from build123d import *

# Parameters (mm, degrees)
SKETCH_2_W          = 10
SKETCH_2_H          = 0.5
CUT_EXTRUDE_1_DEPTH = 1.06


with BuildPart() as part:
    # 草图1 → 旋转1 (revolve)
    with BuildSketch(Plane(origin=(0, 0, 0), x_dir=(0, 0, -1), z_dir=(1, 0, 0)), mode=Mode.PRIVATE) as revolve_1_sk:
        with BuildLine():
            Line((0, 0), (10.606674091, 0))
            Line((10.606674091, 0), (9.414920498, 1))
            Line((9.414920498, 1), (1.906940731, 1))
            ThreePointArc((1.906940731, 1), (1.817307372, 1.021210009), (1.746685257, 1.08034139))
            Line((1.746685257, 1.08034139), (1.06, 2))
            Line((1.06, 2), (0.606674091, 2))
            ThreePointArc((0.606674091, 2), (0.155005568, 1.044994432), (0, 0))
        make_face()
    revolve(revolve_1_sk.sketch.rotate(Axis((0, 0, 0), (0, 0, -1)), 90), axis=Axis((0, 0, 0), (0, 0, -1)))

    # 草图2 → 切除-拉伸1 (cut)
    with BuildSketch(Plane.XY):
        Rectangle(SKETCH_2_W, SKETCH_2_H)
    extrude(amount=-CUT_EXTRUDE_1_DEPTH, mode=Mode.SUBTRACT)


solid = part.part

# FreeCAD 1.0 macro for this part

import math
import FreeCAD as App
import Part
import Sketcher
from FreeCAD import Vector
Q = App.Units.Quantity


def add_polygon(sketch, points):
    """Adds a closed chain of lines whose ends are joined by coincident constraints."""
    first, n = sketch.GeometryCount, len(points)
    for a, b in zip(points, points[1:] + points[:1]):
        sketch.addGeometry(Part.LineSegment(App.Vector(*a, 0), App.Vector(*b, 0)), False)
    for i in range(n):
        sketch.addConstraint(Sketcher.Constraint("Coincident", first + i, 2, first + (i + 1) % n, 1))

doc = App.newDocument("Part")
body = doc.addObject("PartDesign::Body", "Body")

# Sketch on YZ plane
sketch1 = body.newObject("Sketcher::SketchObject", "Sketch")
sketch1.AttachmentSupport = (doc.getObject("YZ_Plane"), [""])
sketch1.MapMode = "FlatFace"
sketch1.addGeometry([
    Part.LineSegment(Vector(0, 0, 0), Vector(0, -10.606674, 0)),  # 0
    Part.LineSegment(Vector(0, -10.606674, 0), Vector(1, -9.41492, 0)),  # 1
    Part.LineSegment(Vector(1, -9.41492, 0), Vector(1, -1.906941, 0)),  # 2
    Part.ArcOfCircle(Part.Circle(Vector(1.2, -1.906941, 0), Vector(0, 0, 1), 0.2), math.radians(126.747744), math.radians(180)),  # 3
    Part.LineSegment(Vector(1.080341, -1.746685, 0), Vector(2, -1.06, 0)),  # 4
    Part.LineSegment(Vector(2, -1.06, 0), Vector(2, -0.606674, 0)),  # 5
    Part.ArcOfCircle(Part.Circle(Vector(0, -3.6, 0), Vector(0, 0, 1), 3.6), math.radians(56.251011), math.radians(90)),  # 6
], False)
sketch1.addConstraint([
    Sketcher.Constraint("Coincident", 0, 2, 1, 1),
    Sketcher.Constraint("Coincident", 1, 2, 2, 1),
    Sketcher.Constraint("Tangent", 2, 2, 3, 2),
    Sketcher.Constraint("Tangent", 3, 1, 4, 1),
    Sketcher.Constraint("Coincident", 4, 2, 5, 1),
    Sketcher.Constraint("Coincident", 5, 2, 6, 1),
    Sketcher.Constraint("Coincident", 6, 2, 0, 1),
    Sketcher.Constraint("Vertical", 0),
    Sketcher.Constraint("Vertical", 2),
    Sketcher.Constraint("Vertical", 5),
    Sketcher.Constraint("Coincident", 6, 2, -1, 1),
    Sketcher.Constraint("PointOnObject", 6, 3, -2),
    Sketcher.Constraint("Radius", 3, 0.2),
    Sketcher.Constraint("Radius", 6, 3.6),
    Sketcher.Constraint("Angle", 1, Q("50 deg")),
    Sketcher.Constraint("DistanceX", -1, 1, 1, 2, 1.0),
    Sketcher.Constraint("DistanceX", -1, 1, 4, 2, 2.0),
    Sketcher.Constraint("DistanceY", 4, 2, -1, 1, 1.06),
    Sketcher.Constraint("DistanceY", 2, 1, 2, 2, 7.50798),
    Sketcher.Constraint("Distance", 4, 1.147741),
])
revolution = body.newObject("PartDesign::Revolution", "Revolution")
revolution.Profile = sketch1
revolution.ReferenceAxis = (sketch1, ["V_Axis"])
revolution.Angle = 360

# Sketch on XY plane
sketch2 = body.newObject("Sketcher::SketchObject", "Sketch001")
sketch2.AttachmentSupport = (doc.getObject("XY_Plane"), [""])
sketch2.MapMode = "FlatFace"
add_polygon(sketch2, [(-5, 0.25), (-5, -0.25), (5, -0.25), (5, 0.25)])  # lines 0-3
sketch2.addConstraint([
    Sketcher.Constraint("Vertical", 0),
    Sketcher.Constraint("Horizontal", 1),
    Sketcher.Constraint("Vertical", 2),
    Sketcher.Constraint("Horizontal", 3),
    Sketcher.Constraint("Symmetric", 0, 2, 2, 2, -1, 1),
    Sketcher.Constraint("DistanceX", 1, 1, 1, 2, 10.0),
    Sketcher.Constraint("DistanceY", 0, 2, 0, 1, 0.5),
])
pocket1 = body.newObject("PartDesign::Pocket", "Pocket")
pocket1.Profile = sketch2
pocket1.Length = 1.06

doc.recompute()
